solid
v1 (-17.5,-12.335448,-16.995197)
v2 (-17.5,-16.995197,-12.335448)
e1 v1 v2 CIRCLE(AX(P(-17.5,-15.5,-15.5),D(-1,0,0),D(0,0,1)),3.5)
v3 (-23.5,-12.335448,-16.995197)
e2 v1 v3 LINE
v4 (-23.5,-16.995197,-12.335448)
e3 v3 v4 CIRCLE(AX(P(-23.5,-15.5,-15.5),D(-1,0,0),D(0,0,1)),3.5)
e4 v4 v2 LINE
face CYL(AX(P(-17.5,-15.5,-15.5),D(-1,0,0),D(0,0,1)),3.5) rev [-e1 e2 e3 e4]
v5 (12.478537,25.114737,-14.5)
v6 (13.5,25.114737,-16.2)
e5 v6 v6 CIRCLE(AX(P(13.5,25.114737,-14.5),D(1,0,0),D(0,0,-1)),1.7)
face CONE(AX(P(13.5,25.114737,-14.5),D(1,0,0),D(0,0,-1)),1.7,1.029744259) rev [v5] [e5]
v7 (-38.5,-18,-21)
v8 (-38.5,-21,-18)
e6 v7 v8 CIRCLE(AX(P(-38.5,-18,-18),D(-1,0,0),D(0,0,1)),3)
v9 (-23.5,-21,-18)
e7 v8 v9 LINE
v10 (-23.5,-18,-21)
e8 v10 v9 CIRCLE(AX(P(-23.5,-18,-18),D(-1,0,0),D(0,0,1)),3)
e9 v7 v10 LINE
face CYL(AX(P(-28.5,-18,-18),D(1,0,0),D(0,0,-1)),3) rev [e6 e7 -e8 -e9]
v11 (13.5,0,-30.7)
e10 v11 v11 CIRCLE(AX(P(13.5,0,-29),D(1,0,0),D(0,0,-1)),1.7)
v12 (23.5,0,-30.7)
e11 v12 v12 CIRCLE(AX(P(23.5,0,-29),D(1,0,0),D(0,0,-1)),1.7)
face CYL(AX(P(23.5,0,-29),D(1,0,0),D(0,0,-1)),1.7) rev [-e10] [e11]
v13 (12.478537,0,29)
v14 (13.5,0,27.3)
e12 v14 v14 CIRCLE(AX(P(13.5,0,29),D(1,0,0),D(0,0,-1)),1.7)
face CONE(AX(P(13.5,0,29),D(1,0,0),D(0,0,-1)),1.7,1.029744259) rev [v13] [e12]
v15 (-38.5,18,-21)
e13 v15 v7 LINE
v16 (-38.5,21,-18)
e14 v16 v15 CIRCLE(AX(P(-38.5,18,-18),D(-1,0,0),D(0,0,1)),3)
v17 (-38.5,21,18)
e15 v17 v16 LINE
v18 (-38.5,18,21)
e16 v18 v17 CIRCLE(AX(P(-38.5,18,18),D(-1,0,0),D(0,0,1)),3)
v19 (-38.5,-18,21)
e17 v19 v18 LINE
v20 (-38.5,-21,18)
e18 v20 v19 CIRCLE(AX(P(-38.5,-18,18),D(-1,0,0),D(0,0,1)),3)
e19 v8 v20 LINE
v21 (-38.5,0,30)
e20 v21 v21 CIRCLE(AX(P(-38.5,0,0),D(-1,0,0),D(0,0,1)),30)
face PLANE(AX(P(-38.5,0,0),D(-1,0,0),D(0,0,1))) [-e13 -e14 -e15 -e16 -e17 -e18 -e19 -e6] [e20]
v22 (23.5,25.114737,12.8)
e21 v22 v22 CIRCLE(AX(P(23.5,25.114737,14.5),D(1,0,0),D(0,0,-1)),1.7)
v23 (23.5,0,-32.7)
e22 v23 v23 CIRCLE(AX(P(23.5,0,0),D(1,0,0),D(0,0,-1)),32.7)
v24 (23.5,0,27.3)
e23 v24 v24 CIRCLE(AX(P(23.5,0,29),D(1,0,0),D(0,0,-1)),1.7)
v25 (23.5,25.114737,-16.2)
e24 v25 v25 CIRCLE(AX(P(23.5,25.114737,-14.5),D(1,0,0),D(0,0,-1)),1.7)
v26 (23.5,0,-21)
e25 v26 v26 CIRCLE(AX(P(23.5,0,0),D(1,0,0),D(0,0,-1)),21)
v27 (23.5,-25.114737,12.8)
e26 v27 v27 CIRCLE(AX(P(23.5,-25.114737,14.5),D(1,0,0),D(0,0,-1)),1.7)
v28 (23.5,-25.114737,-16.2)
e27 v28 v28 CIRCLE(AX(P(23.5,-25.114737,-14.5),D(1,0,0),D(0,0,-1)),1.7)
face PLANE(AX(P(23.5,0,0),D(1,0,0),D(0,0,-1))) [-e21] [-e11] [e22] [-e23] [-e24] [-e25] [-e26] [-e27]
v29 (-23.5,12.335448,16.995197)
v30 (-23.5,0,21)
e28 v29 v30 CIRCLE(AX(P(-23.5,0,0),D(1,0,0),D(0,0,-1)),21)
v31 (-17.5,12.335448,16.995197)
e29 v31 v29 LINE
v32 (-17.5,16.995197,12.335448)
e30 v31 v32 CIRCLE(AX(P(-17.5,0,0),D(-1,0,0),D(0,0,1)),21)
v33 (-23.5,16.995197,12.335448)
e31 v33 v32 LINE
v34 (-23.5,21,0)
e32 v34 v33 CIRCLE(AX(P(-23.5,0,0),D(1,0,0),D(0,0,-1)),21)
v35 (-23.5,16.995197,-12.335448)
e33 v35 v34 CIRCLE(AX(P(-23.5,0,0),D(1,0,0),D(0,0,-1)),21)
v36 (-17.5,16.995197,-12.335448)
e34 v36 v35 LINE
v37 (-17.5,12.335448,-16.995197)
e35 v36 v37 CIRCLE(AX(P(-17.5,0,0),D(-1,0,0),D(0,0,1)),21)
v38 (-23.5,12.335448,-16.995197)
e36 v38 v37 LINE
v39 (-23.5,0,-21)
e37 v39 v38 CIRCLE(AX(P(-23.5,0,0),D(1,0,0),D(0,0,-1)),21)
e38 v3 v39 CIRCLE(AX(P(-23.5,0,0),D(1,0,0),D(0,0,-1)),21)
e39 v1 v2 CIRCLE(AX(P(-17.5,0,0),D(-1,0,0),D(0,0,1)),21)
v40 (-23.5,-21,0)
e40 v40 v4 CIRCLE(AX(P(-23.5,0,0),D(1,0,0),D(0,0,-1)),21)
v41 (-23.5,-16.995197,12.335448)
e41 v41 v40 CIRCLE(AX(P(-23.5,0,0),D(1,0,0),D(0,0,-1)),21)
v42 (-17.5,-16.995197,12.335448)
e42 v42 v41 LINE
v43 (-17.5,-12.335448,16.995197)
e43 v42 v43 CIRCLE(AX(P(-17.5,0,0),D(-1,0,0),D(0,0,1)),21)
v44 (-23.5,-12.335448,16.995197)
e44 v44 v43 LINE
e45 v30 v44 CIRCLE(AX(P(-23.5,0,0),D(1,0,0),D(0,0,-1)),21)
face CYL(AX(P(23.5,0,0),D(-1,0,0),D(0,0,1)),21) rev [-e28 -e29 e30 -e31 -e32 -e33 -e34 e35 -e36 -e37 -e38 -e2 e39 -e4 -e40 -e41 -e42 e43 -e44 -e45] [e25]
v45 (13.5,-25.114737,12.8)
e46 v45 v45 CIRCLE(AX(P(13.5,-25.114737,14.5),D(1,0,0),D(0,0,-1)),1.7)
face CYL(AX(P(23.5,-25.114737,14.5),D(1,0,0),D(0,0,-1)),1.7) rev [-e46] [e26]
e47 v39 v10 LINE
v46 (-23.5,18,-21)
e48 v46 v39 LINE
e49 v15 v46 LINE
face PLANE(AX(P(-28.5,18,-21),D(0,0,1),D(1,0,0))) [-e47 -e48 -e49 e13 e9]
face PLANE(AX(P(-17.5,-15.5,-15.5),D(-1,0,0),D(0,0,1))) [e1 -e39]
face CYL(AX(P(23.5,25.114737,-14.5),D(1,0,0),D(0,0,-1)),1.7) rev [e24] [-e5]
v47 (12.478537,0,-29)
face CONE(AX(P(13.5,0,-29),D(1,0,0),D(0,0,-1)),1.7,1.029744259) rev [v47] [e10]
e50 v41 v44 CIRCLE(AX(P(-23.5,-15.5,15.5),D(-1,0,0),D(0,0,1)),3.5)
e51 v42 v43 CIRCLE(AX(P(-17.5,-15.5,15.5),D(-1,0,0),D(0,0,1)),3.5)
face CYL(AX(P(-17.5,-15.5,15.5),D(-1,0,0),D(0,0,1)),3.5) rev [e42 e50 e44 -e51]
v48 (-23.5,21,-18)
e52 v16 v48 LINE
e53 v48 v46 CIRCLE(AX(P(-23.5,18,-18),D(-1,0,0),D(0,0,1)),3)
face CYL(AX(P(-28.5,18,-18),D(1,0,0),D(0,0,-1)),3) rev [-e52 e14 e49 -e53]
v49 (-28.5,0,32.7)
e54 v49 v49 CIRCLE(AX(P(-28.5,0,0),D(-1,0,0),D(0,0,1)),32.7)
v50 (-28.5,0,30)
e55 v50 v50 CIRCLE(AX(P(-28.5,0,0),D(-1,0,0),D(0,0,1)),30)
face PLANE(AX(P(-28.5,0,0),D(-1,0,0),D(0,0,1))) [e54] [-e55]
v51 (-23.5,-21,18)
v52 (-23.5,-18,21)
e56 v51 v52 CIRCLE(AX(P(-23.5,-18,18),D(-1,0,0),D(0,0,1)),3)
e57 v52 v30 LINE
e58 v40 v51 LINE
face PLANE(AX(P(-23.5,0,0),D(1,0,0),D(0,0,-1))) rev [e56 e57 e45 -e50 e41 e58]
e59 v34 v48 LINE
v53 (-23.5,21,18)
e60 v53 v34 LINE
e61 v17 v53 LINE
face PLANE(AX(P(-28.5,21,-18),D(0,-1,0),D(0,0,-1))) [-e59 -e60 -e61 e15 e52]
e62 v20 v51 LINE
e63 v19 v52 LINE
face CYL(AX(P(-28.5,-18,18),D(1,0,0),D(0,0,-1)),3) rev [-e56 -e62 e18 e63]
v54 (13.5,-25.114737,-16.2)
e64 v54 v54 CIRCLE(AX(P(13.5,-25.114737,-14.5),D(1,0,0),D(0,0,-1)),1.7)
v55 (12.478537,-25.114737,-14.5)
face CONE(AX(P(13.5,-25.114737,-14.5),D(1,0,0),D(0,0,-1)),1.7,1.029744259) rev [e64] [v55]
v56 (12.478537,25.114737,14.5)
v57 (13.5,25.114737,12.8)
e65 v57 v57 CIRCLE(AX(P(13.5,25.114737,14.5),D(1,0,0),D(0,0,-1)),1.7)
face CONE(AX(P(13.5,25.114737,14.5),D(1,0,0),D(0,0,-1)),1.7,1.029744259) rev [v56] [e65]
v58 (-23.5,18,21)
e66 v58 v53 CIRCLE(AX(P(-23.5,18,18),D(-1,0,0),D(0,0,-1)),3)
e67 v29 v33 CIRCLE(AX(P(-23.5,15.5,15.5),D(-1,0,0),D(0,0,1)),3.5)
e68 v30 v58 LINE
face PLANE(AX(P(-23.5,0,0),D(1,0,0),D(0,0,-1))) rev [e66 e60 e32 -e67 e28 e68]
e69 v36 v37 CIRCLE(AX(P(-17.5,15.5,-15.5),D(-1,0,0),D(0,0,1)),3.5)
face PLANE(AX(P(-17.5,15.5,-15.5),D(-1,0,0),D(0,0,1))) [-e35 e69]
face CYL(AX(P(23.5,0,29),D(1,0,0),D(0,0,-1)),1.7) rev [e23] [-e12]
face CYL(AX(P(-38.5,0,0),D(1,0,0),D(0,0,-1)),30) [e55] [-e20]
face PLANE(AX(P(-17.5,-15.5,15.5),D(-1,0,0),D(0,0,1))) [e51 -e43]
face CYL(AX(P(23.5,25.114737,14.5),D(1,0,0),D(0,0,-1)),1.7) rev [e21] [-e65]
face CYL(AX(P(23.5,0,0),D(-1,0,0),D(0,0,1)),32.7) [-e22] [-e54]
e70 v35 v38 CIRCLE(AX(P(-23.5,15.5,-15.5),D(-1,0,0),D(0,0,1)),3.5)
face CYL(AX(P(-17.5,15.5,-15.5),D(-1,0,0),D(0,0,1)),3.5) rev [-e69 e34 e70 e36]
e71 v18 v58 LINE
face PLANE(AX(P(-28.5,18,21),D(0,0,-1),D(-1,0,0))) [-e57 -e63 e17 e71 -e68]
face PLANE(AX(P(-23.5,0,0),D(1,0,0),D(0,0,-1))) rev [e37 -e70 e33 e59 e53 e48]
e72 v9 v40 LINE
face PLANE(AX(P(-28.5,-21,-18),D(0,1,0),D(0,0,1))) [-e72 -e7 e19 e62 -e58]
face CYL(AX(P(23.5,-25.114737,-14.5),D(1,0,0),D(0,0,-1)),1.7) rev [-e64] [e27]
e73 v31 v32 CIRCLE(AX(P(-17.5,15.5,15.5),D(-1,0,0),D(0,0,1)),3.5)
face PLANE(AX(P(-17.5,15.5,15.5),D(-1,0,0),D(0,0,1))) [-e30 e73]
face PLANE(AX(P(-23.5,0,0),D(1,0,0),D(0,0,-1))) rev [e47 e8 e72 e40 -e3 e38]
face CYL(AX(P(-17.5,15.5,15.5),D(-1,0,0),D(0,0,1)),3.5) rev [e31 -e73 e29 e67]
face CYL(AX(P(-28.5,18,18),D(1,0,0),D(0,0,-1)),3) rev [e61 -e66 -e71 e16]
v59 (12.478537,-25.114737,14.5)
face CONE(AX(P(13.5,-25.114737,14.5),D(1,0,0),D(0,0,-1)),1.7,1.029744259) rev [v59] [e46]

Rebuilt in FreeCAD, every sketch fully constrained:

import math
import FreeCAD as App
import Part
import Sketcher

V = App.Vector

doc = App.newDocument("Part")
body = doc.addObject("PartDesign::Body", "Body")

sketch1 = body.newObject("Sketcher::SketchObject", "Sketch")
sketch1.AttachmentSupport = (doc.getObject("YZ_Plane"), [""])
sketch1.MapMode = "FlatFace"
sketch1.addGeometry(Part.Circle(V(0, 0, 0), V(0, 0, 1), 33), False)
sketch1.addGeometry(Part.Circle(V(0, 0, 0), V(0, 0, 1), 21), False)
sketch1.addConstraint(Sketcher.Constraint("Coincident", 0, 3, -1, 1))
sketch1.addConstraint(Sketcher.Constraint("Coincident", 1, 3, -1, 1))
sketch1.addConstraint(Sketcher.Constraint("Diameter", 1, 42.0))
sketch1.addConstraint(Sketcher.Constraint("Diameter", 0, 65.4))
pad1 = body.newObject("PartDesign::Pad", "Pad")
pad1.Profile = sketch1
pad1.Length = 47
pad1.Midplane = True

sketch2 = body.newObject("Sketcher::SketchObject", "Sketch001")
sketch2.AttachmentSupport = (doc.getObject("YZ_Plane"), [""])
sketch2.MapMode = "FlatFace"
sketch2.AttachmentOffset = App.Placement(V(0, 0, -23.5), App.Rotation())
sketch2.addGeometry(Part.Circle(V(0, 0, 0), V(0, 0, 1), 32.7), False)
sketch2.addGeometry(Part.ArcOfCircle(Part.Circle(V(18, -18, 0), V(0, 0, 1), 3), math.radians(-90), math.radians(0)), False)
sketch2.addGeometry(Part.LineSegment(V(21, -18, 0), V(21, 18, 0)), False)
sketch2.addGeometry(Part.ArcOfCircle(Part.Circle(V(18, 18, 0), V(0, 0, 1), 3), math.radians(0), math.radians(90)), False)
sketch2.addGeometry(Part.LineSegment(V(18, 21, 0), V(-18, 21, 0)), False)
sketch2.addGeometry(Part.ArcOfCircle(Part.Circle(V(-18, 18, 0), V(0, 0, 1), 3), math.radians(90), math.radians(180)), False)
sketch2.addGeometry(Part.LineSegment(V(-21, 18, 0), V(-21, -18, 0)), False)
sketch2.addGeometry(Part.ArcOfCircle(Part.Circle(V(-18, -18, 0), V(0, 0, 1), 3), math.radians(180), math.radians(270)), False)
sketch2.addGeometry(Part.LineSegment(V(-18, -21, 0), V(18, -21, 0)), False)
sketch2.addConstraint(Sketcher.Constraint("Tangent", 1, 2, 2, 1))
sketch2.addConstraint(Sketcher.Constraint("Tangent", 2, 2, 3, 1))
sketch2.addConstraint(Sketcher.Constraint("Tangent", 3, 2, 4, 1))
sketch2.addConstraint(Sketcher.Constraint("Tangent", 4, 2, 5, 1))
sketch2.addConstraint(Sketcher.Constraint("Tangent", 5, 2, 6, 1))
sketch2.addConstraint(Sketcher.Constraint("Tangent", 6, 2, 7, 1))
sketch2.addConstraint(Sketcher.Constraint("Tangent", 7, 2, 8, 1))
sketch2.addConstraint(Sketcher.Constraint("Tangent", 8, 2, 1, 1))
sketch2.addConstraint(Sketcher.Constraint("Vertical", 2))
sketch2.addConstraint(Sketcher.Constraint("Horizontal", 4))
sketch2.addConstraint(Sketcher.Constraint("Vertical", 6))
sketch2.addConstraint(Sketcher.Constraint("Horizontal", 8))
sketch2.addConstraint(Sketcher.Constraint("Coincident", 0, 3, -1, 1))
sketch2.addConstraint(Sketcher.Constraint("Equal", 1, 3))
sketch2.addConstraint(Sketcher.Constraint("Equal", 3, 5))
sketch2.addConstraint(Sketcher.Constraint("Equal", 5, 7))
sketch2.addConstraint(Sketcher.Constraint("Symmetric", 1, 3, 5, 3, -1, 1))
sketch2.addConstraint(Sketcher.Constraint("Equal", 8, 2))
sketch2.addConstraint(Sketcher.Constraint("Radius", 1, 3.0))
sketch2.addConstraint(Sketcher.Constraint("Diameter", 0, 65.4))
sketch2.addConstraint(Sketcher.Constraint("DistanceX", 4, 2, 4, 1, 36.0))
pad2 = body.newObject("PartDesign::Pad", "Pad001")
pad2.Profile = sketch2
pad2.Length = 5
pad2.Reversed = True

sketch3 = body.newObject("Sketcher::SketchObject", "Sketch002")
sketch3.AttachmentSupport = (doc.getObject("YZ_Plane"), [""])
sketch3.MapMode = "FlatFace"
sketch3.AttachmentOffset = App.Placement(V(0, 0, -23.5), App.Rotation())
sketch3.addGeometry(Part.Circle(V(15.5, 15.5, 0), V(0, 0, 1), 3.5), False)
sketch3.addGeometry(Part.Circle(V(15.5, -15.5, 0), V(0, 0, 1), 3.5), False)
sketch3.addGeometry(Part.Circle(V(-15.5, -15.5, 0), V(0, 0, 1), 3.5), False)
sketch3.addGeometry(Part.Circle(V(-15.5, 15.5, 0), V(0, 0, 1), 3.5), False)
sketch3.addConstraint(Sketcher.Constraint("Equal", 0, 1))
sketch3.addConstraint(Sketcher.Constraint("Equal", 1, 2))
sketch3.addConstraint(Sketcher.Constraint("Equal", 2, 3))
sketch3.addConstraint(Sketcher.Constraint("Symmetric", 0, 3, 2, 3, -1, 1))
sketch3.addConstraint(Sketcher.Constraint("Symmetric", 1, 3, 3, 3, -1, 1))
sketch3.addConstraint(Sketcher.Constraint("Symmetric", 1, 3, 2, 3, -2))
sketch3.addConstraint(Sketcher.Constraint("Diameter", 0, 7.0))
sketch3.addConstraint(Sketcher.Constraint("DistanceY", 1, 3, 0, 3, 31.0))
sketch3.addConstraint(Sketcher.Constraint("DistanceX", 2, 3, 1, 3, 31.0))
pocket1 = body.newObject("PartDesign::Pocket", "Pocket")
pocket1.Profile = sketch3
pocket1.Length = 6
pocket1.Reversed = True

sketch4 = body.newObject("Sketcher::SketchObject", "Sketch003")
sketch4.AttachmentSupport = (doc.getObject("YZ_Plane"), [""])
sketch4.MapMode = "FlatFace"
sketch4.AttachmentOffset = App.Placement(V(0, 0, -28.5), App.Rotation())
sketch4.addGeometry(Part.Circle(V(0, 0, 0), V(0, 0, 1), 30), False)
sketch4.addGeometry(Part.LineSegment(V(21, -18, 0), V(21, 18, 0)), False)
sketch4.addGeometry(Part.ArcOfCircle(Part.Circle(V(18, 18, 0), V(0, 0, 1), 3), math.radians(0), math.radians(90)), False)
sketch4.addGeometry(Part.LineSegment(V(18, 21, 0), V(-18, 21, 0)), False)
sketch4.addGeometry(Part.ArcOfCircle(Part.Circle(V(-18, 18, 0), V(0, 0, 1), 3), math.radians(90), math.radians(180)), False)
sketch4.addGeometry(Part.LineSegment(V(-21, 18, 0), V(-21, -18, 0)), False)
sketch4.addGeometry(Part.ArcOfCircle(Part.Circle(V(-18, -18, 0), V(0, 0, 1), 3), math.radians(180), math.radians(270)), False)
sketch4.addGeometry(Part.LineSegment(V(-18, -21, 0), V(18, -21, 0)), False)
sketch4.addGeometry(Part.ArcOfCircle(Part.Circle(V(18, -18, 0), V(0, 0, 1), 3), math.radians(-90), math.radians(0)), False)
sketch4.addConstraint(Sketcher.Constraint("Tangent", 1, 2, 2, 1))
sketch4.addConstraint(Sketcher.Constraint("Tangent", 2, 2, 3, 1))
sketch4.addConstraint(Sketcher.Constraint("Tangent", 3, 2, 4, 1))
sketch4.addConstraint(Sketcher.Constraint("Tangent", 4, 2, 5, 1))
sketch4.addConstraint(Sketcher.Constraint("Tangent", 5, 2, 6, 1))
sketch4.addConstraint(Sketcher.Constraint("Tangent", 6, 2, 7, 1))
sketch4.addConstraint(Sketcher.Constraint("Tangent", 7, 2, 8, 1))
sketch4.addConstraint(Sketcher.Constraint("Tangent", 8, 2, 1, 1))
sketch4.addConstraint(Sketcher.Constraint("Vertical", 1))
sketch4.addConstraint(Sketcher.Constraint("Horizontal", 3))
sketch4.addConstraint(Sketcher.Constraint("Vertical", 5))
sketch4.addConstraint(Sketcher.Constraint("Horizontal", 7))
sketch4.addConstraint(Sketcher.Constraint("Coincident", 0, 3, -1, 1))
sketch4.addConstraint(Sketcher.Constraint("Equal", 2, 4))
sketch4.addConstraint(Sketcher.Constraint("Equal", 4, 6))
sketch4.addConstraint(Sketcher.Constraint("Equal", 6, 8))
sketch4.addConstraint(Sketcher.Constraint("Symmetric", 2, 3, 6, 3, -1, 1))
sketch4.addConstraint(Sketcher.Constraint("Equal", 7, 1))
sketch4.addConstraint(Sketcher.Constraint("Diameter", 0, 60.0))
sketch4.addConstraint(Sketcher.Constraint("Radius", 2, 3.0))
sketch4.addConstraint(Sketcher.Constraint("DistanceX", 3, 2, 3, 1, 36.0))
pad3 = body.newObject("PartDesign::Pad", "Pad002")
pad3.Profile = sketch4
pad3.Length = 10
pad3.Reversed = True

sketch5 = body.newObject("Sketcher::SketchObject", "Sketch004")
sketch5.AttachmentSupport = (doc.getObject("YZ_Plane"), [""])
sketch5.MapMode = "FlatFace"
sketch5.AttachmentOffset = App.Placement(V(0, 0, 23.5), App.Rotation())
sketch5.addGeometry(Part.Circle(V(0, -29, 0), V(0, 0, 1), 1.7), False)
sketch5.addGeometry(Part.Circle(V(-25.1, -14.5, 0), V(0, 0, 1), 1.7), False)
sketch5.addGeometry(Part.Circle(V(-25.1, 14.5, 0), V(0, 0, 1), 1.7), False)
sketch5.addGeometry(Part.Circle(V(0, 29, 0), V(0, 0, 1), 1.7), False)
sketch5.addGeometry(Part.Circle(V(25.1, 14.5, 0), V(0, 0, 1), 1.7), False)
sketch5.addGeometry(Part.Circle(V(25.1, -14.5, 0), V(0, 0, 1), 1.7), False)
sketch5.addConstraint(Sketcher.Constraint("Equal", 0, 1))
sketch5.addConstraint(Sketcher.Constraint("Equal", 1, 2))
sketch5.addConstraint(Sketcher.Constraint("Equal", 2, 3))
sketch5.addConstraint(Sketcher.Constraint("Equal", 3, 4))
sketch5.addConstraint(Sketcher.Constraint("Equal", 4, 5))
sketch5.addConstraint(Sketcher.Constraint("Symmetric", 0, 3, 3, 3, -1, 1))
sketch5.addConstraint(Sketcher.Constraint("Symmetric", 1, 3, 4, 3, -1, 1))
sketch5.addConstraint(Sketcher.Constraint("Symmetric", 2, 3, 5, 3, -1, 1))
sketch5.addConstraint(Sketcher.Constraint("Symmetric", 2, 3, 4, 3, -2))
sketch5.addConstraint(Sketcher.Constraint("PointOnObject", 0, 3, -2))
sketch5.addConstraint(Sketcher.Constraint("Diameter", 0, 3.4))
sketch5.addConstraint(Sketcher.Constraint("DistanceY", 0, 3, -1, 1, 29.0))
sketch5.addConstraint(Sketcher.Constraint("DistanceY", 1, 3, 2, 3, 29.0))
sketch5.addConstraint(Sketcher.Constraint("DistanceX", 1, 3, -1, 1, 25.114737))
doc.recompute()
hole = body.newObject("PartDesign::Hole", "Hole")
hole.Profile = sketch5
hole.ThreadType = "None"
hole.Diameter = 3.4
hole.DepthType = "Dimension"
hole.Depth = 10
hole.DrillPoint = "Angled"
hole.DrillPointAngle = 118

doc.recompute()
